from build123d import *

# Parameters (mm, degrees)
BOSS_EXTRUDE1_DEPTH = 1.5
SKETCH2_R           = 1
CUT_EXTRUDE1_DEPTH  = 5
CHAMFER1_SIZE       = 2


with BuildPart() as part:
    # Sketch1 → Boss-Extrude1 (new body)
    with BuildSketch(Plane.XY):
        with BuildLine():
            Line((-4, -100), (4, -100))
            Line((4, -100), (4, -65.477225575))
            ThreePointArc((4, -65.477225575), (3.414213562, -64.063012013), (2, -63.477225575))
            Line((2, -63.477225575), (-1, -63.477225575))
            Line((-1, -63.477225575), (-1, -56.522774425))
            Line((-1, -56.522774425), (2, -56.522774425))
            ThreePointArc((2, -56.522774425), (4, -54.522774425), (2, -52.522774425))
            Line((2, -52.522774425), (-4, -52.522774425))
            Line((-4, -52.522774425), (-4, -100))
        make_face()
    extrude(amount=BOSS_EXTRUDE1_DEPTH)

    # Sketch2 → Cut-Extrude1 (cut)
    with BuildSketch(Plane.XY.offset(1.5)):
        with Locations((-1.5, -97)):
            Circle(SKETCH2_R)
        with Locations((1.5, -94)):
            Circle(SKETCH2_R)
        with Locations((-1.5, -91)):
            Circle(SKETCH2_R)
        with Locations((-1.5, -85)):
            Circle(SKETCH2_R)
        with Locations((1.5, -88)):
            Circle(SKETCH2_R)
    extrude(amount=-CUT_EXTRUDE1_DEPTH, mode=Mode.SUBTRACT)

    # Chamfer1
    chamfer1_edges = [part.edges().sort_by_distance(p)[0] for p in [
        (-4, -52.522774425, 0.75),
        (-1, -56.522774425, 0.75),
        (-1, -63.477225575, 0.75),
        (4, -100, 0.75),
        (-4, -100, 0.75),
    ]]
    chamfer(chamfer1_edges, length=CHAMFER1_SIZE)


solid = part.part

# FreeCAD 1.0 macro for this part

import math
import FreeCAD as App
import Part
import Sketcher
from FreeCAD import Vector
Q = App.Units.Quantity


def edges_at(feature, points):
    """Names of the edges that pass closest to the given points."""
    edges = feature.Shape.Edges
    near = lambda p: min(range(len(edges)), key=lambda i: edges[i].distToShape(Part.Vertex(*p))[0])
    return sorted({f"Edge{near(p) + 1}" for p in points})

doc = App.newDocument("Part")
body = doc.addObject("PartDesign::Body", "Body")

sketch1 = doc.addObject("Sketcher::SketchObject", "Sketch")
body.addObject(sketch1)
sketch1.AttachmentSupport = (doc.XY_Plane, [""])
sketch1.MapMode = "FlatFace"
sketch1.addGeometry([
    Part.LineSegment(Vector(-4, -100, 0), Vector(4, -100, 0)),
    Part.LineSegment(Vector(4, -100, 0), Vector(4, -65.5, 0)),
    Part.ArcOfCircle(Part.Circle(Vector(2, -65.5, 0), Vector(0, 0, 1), 2), math.radians(0), math.radians(90)),
    Part.LineSegment(Vector(2, -63.5, 0), Vector(-1, -63.5, 0)),
    Part.LineSegment(Vector(-1, -63.5, 0), Vector(-1, -56.5, 0)),
    Part.LineSegment(Vector(-1, -56.5, 0), Vector(2, -56.5, 0)),
    Part.ArcOfCircle(Part.Circle(Vector(2, -54.5, 0), Vector(0, 0, 1), 2), math.radians(-90), math.radians(90)),
    Part.LineSegment(Vector(2, -52.5, 0), Vector(-4, -52.5, 0)),
    Part.LineSegment(Vector(-4, -52.5, 0), Vector(-4, -100, 0)),
], False)
sketch1.addConstraint([
    Sketcher.Constraint("Coincident", 0, 2, 1, 1),
    Sketcher.Constraint("Tangent", 1, 2, 2, 1),
    Sketcher.Constraint("Tangent", 2, 2, 3, 1),
    Sketcher.Constraint("Coincident", 3, 2, 4, 1),
    Sketcher.Constraint("Coincident", 4, 2, 5, 1),
    Sketcher.Constraint("Tangent", 5, 2, 6, 1),
    Sketcher.Constraint("Tangent", 6, 2, 7, 1),
    Sketcher.Constraint("Coincident", 7, 2, 8, 1),
    Sketcher.Constraint("Coincident", 8, 2, 0, 1),
    Sketcher.Constraint("Horizontal", 0),
    Sketcher.Constraint("Vertical", 1),
    Sketcher.Constraint("Horizontal", 3),
    Sketcher.Constraint("Vertical", 4),
    Sketcher.Constraint("Horizontal", 5),
    Sketcher.Constraint("Horizontal", 7),
    Sketcher.Constraint("Vertical", 8),
    Sketcher.Constraint("Equal", 2, 6),
    Sketcher.Constraint("Vertical", 2, 3, 6, 3),
    Sketcher.Constraint("Radius", 2, Q("2 mm")),
    Sketcher.Constraint("DistanceX", 0, 1, 0, 2, Q("8 mm")),
    Sketcher.Constraint("DistanceX", 3, 2, 3, 1, Q("3 mm")),
    Sketcher.Constraint("DistanceX", -1, 1, 2, 3, Q("2 mm")),
    Sketcher.Constraint("DistanceY", 0, 2, -1, 1, Q("100 mm")),
    Sketcher.Constraint("DistanceY", 4, 1, 4, 2, Q("6.954451 mm")),
    Sketcher.Constraint("DistanceY", 1, 1, 1, 2, Q("34.522774 mm")),
])
pad1 = doc.addObject("PartDesign::Pad", "Pad")
body.addObject(pad1)
pad1.Profile = sketch1
pad1.Length = 1.5

sketch2 = doc.addObject("Sketcher::SketchObject", "Sketch001")
body.addObject(sketch2)
sketch2.AttachmentSupport = (doc.XY_Plane, [""])
sketch2.MapMode = "FlatFace"
sketch2.AttachmentOffset = App.Placement(Vector(0, 0, 1.5), App.Rotation())
sketch2.addGeometry([
    Part.Circle(Vector(-1.5, -97, 0), Vector(0, 0, 1), 1),
    Part.Circle(Vector(1.5, -94, 0), Vector(0, 0, 1), 1),
    Part.Circle(Vector(-1.5, -91, 0), Vector(0, 0, 1), 1),
    Part.Circle(Vector(-1.5, -85, 0), Vector(0, 0, 1), 1),
    Part.Circle(Vector(1.5, -88, 0), Vector(0, 0, 1), 1),
], False)
sketch2.addConstraint([
    Sketcher.Constraint("Equal", 0, 1),
    Sketcher.Constraint("Equal", 1, 2),
    Sketcher.Constraint("Equal", 2, 3),
    Sketcher.Constraint("Equal", 3, 4),
    Sketcher.Constraint("Vertical", 0, 3, 2, 3),
    Sketcher.Constraint("Vertical", 2, 3, 3, 3),
    Sketcher.Constraint("Vertical", 1, 3, 4, 3),
    Sketcher.Constraint("Diameter", 0, Q("2 mm")),
    Sketcher.Constraint("DistanceY", 0, 3, -1, 1, Q("97 mm")),
    Sketcher.Constraint("DistanceY", 1, 3, -1, 1, Q("94 mm")),
    Sketcher.Constraint("DistanceY", 2, 3, -1, 1, Q("91 mm")),
    Sketcher.Constraint("DistanceY", 3, 3, -1, 1, Q("85 mm")),
    Sketcher.Constraint("DistanceY", 4, 3, -1, 1, Q("88 mm")),
    Sketcher.Constraint("DistanceX", 0, 3, 1, 3, Q("3 mm")),
    Sketcher.Constraint("DistanceX", 0, 3, -1, 1, Q("1.5 mm")),
])
pocket1 = doc.addObject("PartDesign::Pocket", "Pocket")
body.addObject(pocket1)
pocket1.Profile = sketch2
pocket1.Length = 5
doc.recompute()

chamfer = doc.addObject("PartDesign::Chamfer", "Chamfer")
body.addObject(chamfer)
chamfer.Base = (pocket1, edges_at(pocket1, [
    (-4, -52.523, 0.75),
    (-1, -56.523, 0.75),
    (-1, -63.477, 0.75),
    (4, -100, 0.75),
    (-4, -100, 0.75),
]))
chamfer.Size = 2

doc.recompute()
